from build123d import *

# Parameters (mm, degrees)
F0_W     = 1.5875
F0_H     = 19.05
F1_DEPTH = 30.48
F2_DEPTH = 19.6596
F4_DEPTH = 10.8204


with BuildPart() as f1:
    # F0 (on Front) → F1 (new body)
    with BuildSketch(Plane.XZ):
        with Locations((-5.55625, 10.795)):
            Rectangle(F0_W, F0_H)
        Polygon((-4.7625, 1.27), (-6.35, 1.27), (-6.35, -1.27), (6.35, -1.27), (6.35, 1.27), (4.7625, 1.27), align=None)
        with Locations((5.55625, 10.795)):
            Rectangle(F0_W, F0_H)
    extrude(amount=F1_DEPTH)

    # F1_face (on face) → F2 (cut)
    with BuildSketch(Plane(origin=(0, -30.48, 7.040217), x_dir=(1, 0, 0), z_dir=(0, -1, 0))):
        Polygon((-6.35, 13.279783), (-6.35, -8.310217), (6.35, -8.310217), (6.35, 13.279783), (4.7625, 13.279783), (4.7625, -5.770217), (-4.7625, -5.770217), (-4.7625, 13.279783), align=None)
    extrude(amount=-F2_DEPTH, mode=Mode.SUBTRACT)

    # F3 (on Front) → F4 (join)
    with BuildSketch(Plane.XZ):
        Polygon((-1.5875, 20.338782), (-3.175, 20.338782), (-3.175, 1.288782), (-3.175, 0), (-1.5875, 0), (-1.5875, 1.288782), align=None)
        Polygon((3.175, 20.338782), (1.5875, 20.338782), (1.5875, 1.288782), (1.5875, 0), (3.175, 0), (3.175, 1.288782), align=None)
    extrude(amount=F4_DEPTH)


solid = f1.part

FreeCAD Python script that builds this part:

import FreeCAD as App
import Part
import Sketcher

V = App.Vector
Q = App.Units.Quantity


def add_polygon(sketch, points):
    """Adds a closed chain of lines whose ends are joined by coincident constraints."""
    first, n = sketch.GeometryCount, len(points)
    for a, b in zip(points, points[1:] + points[:1]):
        sketch.addGeometry(Part.LineSegment(App.Vector(*a, 0), App.Vector(*b, 0)), False)
    for i in range(n):
        sketch.addConstraint(Sketcher.Constraint("Coincident", first + i, 2, first + (i + 1) % n, 1))

doc = App.newDocument("Part")
params = doc.addObject("Spreadsheet::Sheet", "Params")
for row, (alias, value) in enumerate([
    ("sketch1_width", "0.5 in"),
    ("sketch1_height", "0.85 in"),
    ("sketch1_height2", "0.75 in"),
    ("sketch1_width2", "0.0625 in"),
    ("pad1_length", "1.2 in"),
    ("sketch2_width", "0.5 in"),
    ("sketch2_height", "0.85 in"),
    ("sketch2_height2", "0.75 in"),
    ("sketch2_width2", "0.0625 in"),
    ("pocket1_length", "0.774 in"),
    ("sketch3_width", "0.0625 in"),
    ("pad2_length", "0.426 in"),
], start=1):
    params.set(f"A{row}", alias)
    params.set(f"B{row}", "=" + value)
    params.setAlias(f"B{row}", alias)

body = doc.addObject("PartDesign::Body", "Body")

sketch1 = body.newObject("Sketcher::SketchObject", "Sketch")
sketch1.AttachmentSupport = (doc.getObject("XZ_Plane"), [""])
sketch1.MapMode = "FlatFace"
add_polygon(sketch1, [(-6.3, 20.3), (-6.3, -1.3), (6.3, -1.3), (6.3, 20.3), (4.8, 20.3), (4.8, 1.3), (-4.8, 1.3), (-4.8, 20.3)])
sketch1.addConstraint([
    Sketcher.Constraint("Vertical", 0),
    Sketcher.Constraint("Horizontal", 1),
    Sketcher.Constraint("Vertical", 2),
    Sketcher.Constraint("Horizontal", 3),
    Sketcher.Constraint("Vertical", 4),
    Sketcher.Constraint("Horizontal", 5),
    Sketcher.Constraint("Vertical", 6),
    Sketcher.Constraint("Horizontal", 7),
    Sketcher.Constraint("Symmetric", 3, 2, 6, 2, -2),
    Sketcher.Constraint("Equal", 3, 7),
    Sketcher.Constraint("DistanceX", 1, 1, 1, 2, Q("0.5 in")),
    Sketcher.Constraint("DistanceY", 0, 2, 0, 1, Q("0.85 in")),
    Sketcher.Constraint("DistanceY", 4, 2, 4, 1, Q("0.75 in")),
    Sketcher.Constraint("DistanceY", -1, 1, 2, 2, Q("0.8 in")),
    Sketcher.Constraint("DistanceX", 3, 2, 3, 1, Q("0.0625 in")),
])
sketch1.setExpression("Constraints[18]", "Params.sketch1_width")
sketch1.setExpression("Constraints[19]", "Params.sketch1_height")
sketch1.setExpression("Constraints[20]", "Params.sketch1_height2")
sketch1.setExpression("Constraints[22]", "Params.sketch1_width2")
pad1 = body.newObject("PartDesign::Pad", "Pad")
pad1.Profile = sketch1
pad1.setExpression("Length", "Params.pad1_length")

sketch2 = body.newObject("Sketcher::SketchObject", "Sketch001")
sketch2.AttachmentSupport = (doc.getObject("XZ_Plane"), [""])
sketch2.MapMode = "FlatFace"
sketch2.AttachmentOffset = App.Placement(V(0, 0, 1.2 * 25.4), App.Rotation())
add_polygon(sketch2, [(-6.3, 20.3), (-6.3, -1.3), (6.3, -1.3), (6.3, 20.3), (4.8, 20.3), (4.8, 1.3), (-4.8, 1.3), (-4.8, 20.3)])
sketch2.addConstraint([
    Sketcher.Constraint("Vertical", 0),
    Sketcher.Constraint("Horizontal", 1),
    Sketcher.Constraint("Vertical", 2),
    Sketcher.Constraint("Horizontal", 3),
    Sketcher.Constraint("Vertical", 4),
    Sketcher.Constraint("Horizontal", 5),
    Sketcher.Constraint("Vertical", 6),
    Sketcher.Constraint("Horizontal", 7),
    Sketcher.Constraint("Symmetric", 3, 2, 6, 2, -2),
    Sketcher.Constraint("Equal", 3, 7),
    Sketcher.Constraint("DistanceX", 1, 1, 1, 2, Q("0.5 in")),
    Sketcher.Constraint("DistanceY", 0, 2, 0, 1, Q("0.85 in")),
    Sketcher.Constraint("DistanceY", 4, 2, 4, 1, Q("0.75 in")),
    Sketcher.Constraint("DistanceY", -1, 1, 2, 2, Q("0.8 in")),
    Sketcher.Constraint("DistanceX", 3, 2, 3, 1, Q("0.0625 in")),
])
sketch2.setExpression("Constraints[18]", "Params.sketch2_width")
sketch2.setExpression("Constraints[19]", "Params.sketch2_height")
sketch2.setExpression("Constraints[20]", "Params.sketch2_height2")
sketch2.setExpression("Constraints[22]", "Params.sketch2_width2")
pocket1 = body.newObject("PartDesign::Pocket", "Pocket")
pocket1.Profile = sketch2
pocket1.setExpression("Length", "Params.pocket1_length")

sketch3 = body.newObject("Sketcher::SketchObject", "Sketch002")
sketch3.AttachmentSupport = (doc.getObject("XZ_Plane"), [""])
sketch3.MapMode = "FlatFace"
add_polygon(sketch3, [(-1.6, 20.3), (-3.2, 20.3), (-3.2, 0), (-1.6, 0)])
add_polygon(sketch3, [(3.2, 20.3), (1.6, 20.3), (1.6, 0), (3.2, 0)])
sketch3.addConstraint([
    Sketcher.Constraint("Horizontal", 0),
    Sketcher.Constraint("Vertical", 1),
    Sketcher.Constraint("Horizontal", 2),
    Sketcher.Constraint("Vertical", 3),
    Sketcher.Constraint("Horizontal", 4),
    Sketcher.Constraint("Vertical", 5),
    Sketcher.Constraint("Horizontal", 6),
    Sketcher.Constraint("Vertical", 7),
    Sketcher.Constraint("Symmetric", 2, 2, 5, 2, -1, 1),
    Sketcher.Constraint("Symmetric", 1, 2, 6, 2, -2),
    Sketcher.Constraint("Horizontal", 3, 2, 4, 2),
    Sketcher.Constraint("DistanceX", 0, 2, 0, 1, Q("0.0625 in")),
    Sketcher.Constraint("DistanceX", 1, 2, 6, 2, Q("0.25 in")),
    Sketcher.Constraint("DistanceY", 1, 2, 1, 1, Q("20.338782 mm")),
])
sketch3.setExpression("Constraints[19]", "Params.sketch3_width")
pad2 = body.newObject("PartDesign::Pad", "Pad001")
pad2.Profile = sketch3
pad2.setExpression("Length", "Params.pad2_length")

doc.recompute()
